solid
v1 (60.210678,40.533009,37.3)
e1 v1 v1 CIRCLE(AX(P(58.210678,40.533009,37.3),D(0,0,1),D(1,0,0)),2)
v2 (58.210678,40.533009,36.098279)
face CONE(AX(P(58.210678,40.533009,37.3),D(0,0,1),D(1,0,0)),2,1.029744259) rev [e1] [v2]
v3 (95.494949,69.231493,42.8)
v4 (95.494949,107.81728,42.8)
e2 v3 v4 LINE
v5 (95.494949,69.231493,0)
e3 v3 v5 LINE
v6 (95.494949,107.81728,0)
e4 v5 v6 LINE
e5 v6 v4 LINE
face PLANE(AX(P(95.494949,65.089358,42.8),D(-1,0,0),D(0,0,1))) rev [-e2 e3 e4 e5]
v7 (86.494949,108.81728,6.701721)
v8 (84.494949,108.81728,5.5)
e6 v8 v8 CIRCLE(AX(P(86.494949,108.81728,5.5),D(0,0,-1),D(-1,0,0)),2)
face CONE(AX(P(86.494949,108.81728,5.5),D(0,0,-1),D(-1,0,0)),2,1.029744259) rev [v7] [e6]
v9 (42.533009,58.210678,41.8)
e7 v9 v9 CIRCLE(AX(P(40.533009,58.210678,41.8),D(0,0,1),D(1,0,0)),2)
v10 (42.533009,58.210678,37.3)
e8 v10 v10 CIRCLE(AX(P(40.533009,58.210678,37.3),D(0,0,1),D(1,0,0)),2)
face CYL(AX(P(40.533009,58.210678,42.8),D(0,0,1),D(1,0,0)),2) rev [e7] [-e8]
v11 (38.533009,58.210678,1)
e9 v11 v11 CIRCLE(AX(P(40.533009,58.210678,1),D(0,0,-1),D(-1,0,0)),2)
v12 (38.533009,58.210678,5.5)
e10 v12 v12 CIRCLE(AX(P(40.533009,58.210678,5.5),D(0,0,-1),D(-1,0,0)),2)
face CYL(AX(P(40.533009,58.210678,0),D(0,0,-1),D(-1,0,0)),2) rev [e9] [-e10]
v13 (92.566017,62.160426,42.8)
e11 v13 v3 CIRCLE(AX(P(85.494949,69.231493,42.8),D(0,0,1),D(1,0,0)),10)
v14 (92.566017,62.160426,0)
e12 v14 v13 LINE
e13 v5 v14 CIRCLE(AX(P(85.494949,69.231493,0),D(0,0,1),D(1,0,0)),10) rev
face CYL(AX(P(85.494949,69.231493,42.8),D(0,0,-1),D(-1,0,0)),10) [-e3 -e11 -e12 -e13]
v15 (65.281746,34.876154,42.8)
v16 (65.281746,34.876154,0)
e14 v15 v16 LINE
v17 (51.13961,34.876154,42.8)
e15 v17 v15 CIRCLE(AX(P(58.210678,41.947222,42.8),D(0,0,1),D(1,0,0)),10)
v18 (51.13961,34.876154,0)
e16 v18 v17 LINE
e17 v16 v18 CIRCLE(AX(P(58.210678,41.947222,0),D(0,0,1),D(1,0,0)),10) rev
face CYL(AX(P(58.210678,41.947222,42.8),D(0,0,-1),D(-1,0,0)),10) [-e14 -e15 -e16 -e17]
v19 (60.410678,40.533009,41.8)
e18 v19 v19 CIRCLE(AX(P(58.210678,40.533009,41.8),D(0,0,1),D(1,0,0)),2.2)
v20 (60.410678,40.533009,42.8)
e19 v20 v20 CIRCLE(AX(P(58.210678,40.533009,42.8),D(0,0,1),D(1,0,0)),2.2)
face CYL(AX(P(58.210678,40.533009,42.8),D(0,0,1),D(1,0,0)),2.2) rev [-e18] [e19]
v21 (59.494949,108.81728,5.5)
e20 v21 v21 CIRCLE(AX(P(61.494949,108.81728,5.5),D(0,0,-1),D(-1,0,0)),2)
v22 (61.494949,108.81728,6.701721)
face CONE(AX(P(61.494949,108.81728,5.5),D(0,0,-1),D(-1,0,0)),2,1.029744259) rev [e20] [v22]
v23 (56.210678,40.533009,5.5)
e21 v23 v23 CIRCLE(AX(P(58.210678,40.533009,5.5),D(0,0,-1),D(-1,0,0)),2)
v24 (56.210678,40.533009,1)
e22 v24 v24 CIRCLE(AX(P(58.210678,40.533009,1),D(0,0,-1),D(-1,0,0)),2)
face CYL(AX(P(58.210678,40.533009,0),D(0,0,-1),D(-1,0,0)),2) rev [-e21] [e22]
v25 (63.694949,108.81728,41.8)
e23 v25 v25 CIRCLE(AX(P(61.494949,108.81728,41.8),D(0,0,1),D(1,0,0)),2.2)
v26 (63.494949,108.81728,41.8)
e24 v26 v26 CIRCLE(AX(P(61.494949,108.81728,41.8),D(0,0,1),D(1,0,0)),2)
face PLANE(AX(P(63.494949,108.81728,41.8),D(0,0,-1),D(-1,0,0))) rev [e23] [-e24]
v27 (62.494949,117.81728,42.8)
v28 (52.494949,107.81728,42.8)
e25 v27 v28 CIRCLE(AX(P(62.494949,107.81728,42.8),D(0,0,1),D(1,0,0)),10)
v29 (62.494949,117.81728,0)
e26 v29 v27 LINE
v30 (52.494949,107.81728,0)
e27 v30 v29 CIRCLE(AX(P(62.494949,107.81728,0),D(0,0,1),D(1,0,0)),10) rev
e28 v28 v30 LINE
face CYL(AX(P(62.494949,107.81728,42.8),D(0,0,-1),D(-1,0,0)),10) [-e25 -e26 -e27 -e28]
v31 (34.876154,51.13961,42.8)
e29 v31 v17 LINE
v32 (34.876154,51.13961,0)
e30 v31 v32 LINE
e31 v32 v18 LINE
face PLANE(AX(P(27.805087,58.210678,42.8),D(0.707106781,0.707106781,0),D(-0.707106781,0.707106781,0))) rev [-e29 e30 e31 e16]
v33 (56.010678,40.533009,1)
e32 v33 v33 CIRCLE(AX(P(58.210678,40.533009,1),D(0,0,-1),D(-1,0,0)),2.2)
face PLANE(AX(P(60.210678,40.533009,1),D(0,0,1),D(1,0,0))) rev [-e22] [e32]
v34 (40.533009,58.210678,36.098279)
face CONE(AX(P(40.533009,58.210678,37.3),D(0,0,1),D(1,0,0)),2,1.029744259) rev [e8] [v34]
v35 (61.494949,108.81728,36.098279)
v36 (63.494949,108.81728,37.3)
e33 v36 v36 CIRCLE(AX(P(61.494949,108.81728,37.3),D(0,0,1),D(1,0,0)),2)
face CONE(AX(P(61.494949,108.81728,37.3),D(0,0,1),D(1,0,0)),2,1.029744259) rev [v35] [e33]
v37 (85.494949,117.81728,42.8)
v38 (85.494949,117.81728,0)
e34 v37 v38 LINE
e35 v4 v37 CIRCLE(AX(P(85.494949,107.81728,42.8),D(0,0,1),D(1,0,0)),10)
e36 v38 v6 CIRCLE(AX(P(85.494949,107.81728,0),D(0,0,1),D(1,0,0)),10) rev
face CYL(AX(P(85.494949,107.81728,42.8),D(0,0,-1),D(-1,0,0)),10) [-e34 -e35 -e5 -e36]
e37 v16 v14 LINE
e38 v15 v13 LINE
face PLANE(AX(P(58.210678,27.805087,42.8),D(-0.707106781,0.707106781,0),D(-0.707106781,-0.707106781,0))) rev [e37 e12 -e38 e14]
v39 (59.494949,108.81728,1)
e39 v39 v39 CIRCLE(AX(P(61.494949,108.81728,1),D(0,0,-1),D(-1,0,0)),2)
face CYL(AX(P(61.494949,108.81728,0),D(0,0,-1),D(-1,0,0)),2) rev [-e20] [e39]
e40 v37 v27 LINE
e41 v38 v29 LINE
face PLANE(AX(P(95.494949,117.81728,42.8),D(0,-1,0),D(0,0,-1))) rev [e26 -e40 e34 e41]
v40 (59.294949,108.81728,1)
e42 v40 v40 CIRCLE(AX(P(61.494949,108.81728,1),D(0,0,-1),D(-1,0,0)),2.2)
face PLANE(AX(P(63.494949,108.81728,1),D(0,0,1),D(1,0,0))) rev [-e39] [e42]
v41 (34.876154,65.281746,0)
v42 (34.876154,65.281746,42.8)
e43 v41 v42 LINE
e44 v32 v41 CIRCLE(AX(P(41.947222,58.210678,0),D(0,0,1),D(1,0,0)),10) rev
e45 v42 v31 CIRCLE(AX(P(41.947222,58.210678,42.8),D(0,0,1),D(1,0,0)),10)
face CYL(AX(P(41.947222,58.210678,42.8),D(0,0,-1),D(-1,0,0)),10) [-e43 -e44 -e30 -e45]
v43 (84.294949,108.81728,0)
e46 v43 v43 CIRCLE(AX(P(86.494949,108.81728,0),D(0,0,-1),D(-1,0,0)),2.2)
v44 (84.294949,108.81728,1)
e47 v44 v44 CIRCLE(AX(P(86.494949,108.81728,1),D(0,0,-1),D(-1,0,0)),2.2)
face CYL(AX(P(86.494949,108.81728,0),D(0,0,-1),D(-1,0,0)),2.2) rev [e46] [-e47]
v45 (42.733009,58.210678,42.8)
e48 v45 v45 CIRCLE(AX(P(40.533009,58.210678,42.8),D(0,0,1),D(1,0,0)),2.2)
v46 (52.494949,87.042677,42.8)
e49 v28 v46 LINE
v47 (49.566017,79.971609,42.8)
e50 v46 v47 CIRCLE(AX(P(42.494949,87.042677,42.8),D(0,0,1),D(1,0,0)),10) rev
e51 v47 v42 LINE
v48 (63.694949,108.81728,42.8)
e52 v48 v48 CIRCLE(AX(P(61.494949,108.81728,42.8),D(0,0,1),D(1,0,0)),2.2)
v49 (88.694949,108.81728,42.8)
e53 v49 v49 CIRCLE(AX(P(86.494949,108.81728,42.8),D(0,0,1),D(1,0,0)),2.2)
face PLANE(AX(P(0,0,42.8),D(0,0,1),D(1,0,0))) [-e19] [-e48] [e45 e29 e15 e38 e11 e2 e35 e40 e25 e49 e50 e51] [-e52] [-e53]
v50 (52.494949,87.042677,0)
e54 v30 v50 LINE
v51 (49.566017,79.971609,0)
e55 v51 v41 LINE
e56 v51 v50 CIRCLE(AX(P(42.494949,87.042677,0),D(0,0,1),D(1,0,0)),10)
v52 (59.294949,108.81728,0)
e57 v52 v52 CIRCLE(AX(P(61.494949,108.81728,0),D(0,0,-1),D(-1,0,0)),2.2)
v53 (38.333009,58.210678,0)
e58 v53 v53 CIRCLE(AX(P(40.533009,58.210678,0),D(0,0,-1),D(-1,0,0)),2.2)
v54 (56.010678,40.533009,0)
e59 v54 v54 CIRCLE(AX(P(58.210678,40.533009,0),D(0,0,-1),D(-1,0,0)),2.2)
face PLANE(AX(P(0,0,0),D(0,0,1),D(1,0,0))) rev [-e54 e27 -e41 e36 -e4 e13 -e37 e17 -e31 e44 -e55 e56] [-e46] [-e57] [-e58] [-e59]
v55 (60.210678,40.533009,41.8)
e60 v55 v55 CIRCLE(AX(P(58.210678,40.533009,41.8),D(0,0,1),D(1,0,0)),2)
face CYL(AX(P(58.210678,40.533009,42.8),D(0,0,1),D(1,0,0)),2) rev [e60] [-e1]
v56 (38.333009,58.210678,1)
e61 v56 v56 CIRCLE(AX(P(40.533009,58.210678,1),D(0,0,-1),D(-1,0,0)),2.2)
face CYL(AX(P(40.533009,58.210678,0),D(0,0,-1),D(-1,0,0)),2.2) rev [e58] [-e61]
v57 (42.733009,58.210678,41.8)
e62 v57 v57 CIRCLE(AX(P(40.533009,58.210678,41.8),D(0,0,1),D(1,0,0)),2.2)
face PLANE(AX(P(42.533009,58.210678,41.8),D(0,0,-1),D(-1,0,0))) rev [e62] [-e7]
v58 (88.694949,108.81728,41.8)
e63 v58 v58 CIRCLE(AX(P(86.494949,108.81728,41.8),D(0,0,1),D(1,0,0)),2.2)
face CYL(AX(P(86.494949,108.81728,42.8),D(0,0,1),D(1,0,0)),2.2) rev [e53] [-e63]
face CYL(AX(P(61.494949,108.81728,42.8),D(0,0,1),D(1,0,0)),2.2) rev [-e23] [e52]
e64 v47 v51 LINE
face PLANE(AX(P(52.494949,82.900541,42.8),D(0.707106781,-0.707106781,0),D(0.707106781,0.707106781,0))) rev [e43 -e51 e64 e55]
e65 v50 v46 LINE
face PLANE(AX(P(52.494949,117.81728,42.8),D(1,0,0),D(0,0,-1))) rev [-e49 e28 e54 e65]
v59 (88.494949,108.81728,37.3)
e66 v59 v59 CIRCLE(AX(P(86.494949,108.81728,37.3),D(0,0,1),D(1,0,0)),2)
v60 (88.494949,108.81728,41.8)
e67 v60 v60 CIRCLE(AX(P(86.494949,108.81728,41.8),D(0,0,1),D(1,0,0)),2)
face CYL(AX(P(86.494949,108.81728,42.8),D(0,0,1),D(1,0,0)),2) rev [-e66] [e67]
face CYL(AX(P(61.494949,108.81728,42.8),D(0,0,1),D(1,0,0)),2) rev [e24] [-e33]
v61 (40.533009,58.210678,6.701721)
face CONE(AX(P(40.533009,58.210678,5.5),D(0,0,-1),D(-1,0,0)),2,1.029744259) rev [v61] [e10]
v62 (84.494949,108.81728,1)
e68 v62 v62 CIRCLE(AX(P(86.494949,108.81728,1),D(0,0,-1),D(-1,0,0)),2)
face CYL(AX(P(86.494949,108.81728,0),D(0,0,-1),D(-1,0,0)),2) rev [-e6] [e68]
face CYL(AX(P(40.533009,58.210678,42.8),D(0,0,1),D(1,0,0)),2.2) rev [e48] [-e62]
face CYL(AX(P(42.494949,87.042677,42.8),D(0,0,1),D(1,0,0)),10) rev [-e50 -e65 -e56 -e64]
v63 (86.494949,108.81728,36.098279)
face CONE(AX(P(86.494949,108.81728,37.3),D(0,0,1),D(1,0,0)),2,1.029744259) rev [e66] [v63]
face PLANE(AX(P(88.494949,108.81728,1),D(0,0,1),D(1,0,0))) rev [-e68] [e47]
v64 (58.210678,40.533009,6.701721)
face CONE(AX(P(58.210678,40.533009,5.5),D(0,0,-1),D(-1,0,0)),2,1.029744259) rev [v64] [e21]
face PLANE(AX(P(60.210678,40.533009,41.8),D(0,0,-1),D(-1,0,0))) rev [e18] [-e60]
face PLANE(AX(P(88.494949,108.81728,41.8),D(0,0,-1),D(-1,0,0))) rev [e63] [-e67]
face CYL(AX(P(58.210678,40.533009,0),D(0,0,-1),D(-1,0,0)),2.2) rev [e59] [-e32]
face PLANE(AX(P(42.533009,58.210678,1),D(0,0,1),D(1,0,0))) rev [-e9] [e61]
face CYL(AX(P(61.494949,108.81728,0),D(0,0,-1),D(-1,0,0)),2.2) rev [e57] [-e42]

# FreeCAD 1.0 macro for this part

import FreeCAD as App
import Part
import Sketcher

V = App.Vector
Q = App.Units.Quantity


def edges_at(feature, points):
    """Names of the edges that pass closest to the given points."""
    edges = feature.Shape.Edges
    near = lambda p: min(range(len(edges)), key=lambda i: edges[i].distToShape(Part.Vertex(*p))[0])
    return sorted({f"Edge{near(p) + 1}" for p in points})

doc = App.newDocument("Part")
body = doc.addObject("PartDesign::Body", "Body")

# Sketch on XY plane
sketch1 = body.newObject("Sketcher::SketchObject", "Sketch")
sketch1.AttachmentSupport = (doc.getObject("XY_Plane"), [""])
sketch1.MapMode = "FlatFace"
sketch1.addGeometry(Part.LineSegment(V(52, 118, 0), V(52, 83, 0)), False)
sketch1.addGeometry(Part.LineSegment(V(52, 83, 0), V(28, 58, 0)), False)
sketch1.addGeometry(Part.LineSegment(V(28, 58, 0), V(58, 28, 0)), False)
sketch1.addGeometry(Part.LineSegment(V(58, 28, 0), V(95, 65, 0)), False)
sketch1.addGeometry(Part.LineSegment(V(95, 65, 0), V(95, 118, 0)), False)
sketch1.addGeometry(Part.LineSegment(V(95, 118, 0), V(52, 118, 0)), False)
sketch1.addConstraint(Sketcher.Constraint("Coincident", 0, 2, 1, 1))
sketch1.addConstraint(Sketcher.Constraint("Coincident", 1, 2, 2, 1))
sketch1.addConstraint(Sketcher.Constraint("Coincident", 2, 2, 3, 1))
sketch1.addConstraint(Sketcher.Constraint("Coincident", 3, 2, 4, 1))
sketch1.addConstraint(Sketcher.Constraint("Coincident", 4, 2, 5, 1))
sketch1.addConstraint(Sketcher.Constraint("Coincident", 5, 2, 0, 1))
sketch1.addConstraint(Sketcher.Constraint("Vertical", 0))
sketch1.addConstraint(Sketcher.Constraint("Vertical", 4))
sketch1.addConstraint(Sketcher.Constraint("Horizontal", 5))
sketch1.addConstraint(Sketcher.Constraint("Perpendicular", 1, 2))
sketch1.addConstraint(Sketcher.Constraint("Perpendicular", 2, 3))
sketch1.addConstraint(Sketcher.Constraint("DistanceX", 5, 2, 5, 1, 43.0))
sketch1.addConstraint(Sketcher.Constraint("Angle", 1, Q("-135 deg")))
sketch1.addConstraint(Sketcher.Constraint("Distance", 2, 43.0))
sketch1.addConstraint(Sketcher.Constraint("DistanceY", 0, 2, 0, 1, 34.916739))
sketch1.addConstraint(Sketcher.Constraint("DistanceY", 1, 2, 4, 2, 59.606602))
sketch1.addConstraint(Sketcher.Constraint("DistanceX", -1, 1, 0, 2, 52.494949))
sketch1.addConstraint(Sketcher.Constraint("DistanceY", -1, 1, 0, 2, 82.900541))
pad1 = body.newObject("PartDesign::Pad", "Pad")
pad1.Profile = sketch1
pad1.Length = 42.8

# Sketch on XY plane
sketch2 = body.newObject("Sketcher::SketchObject", "Sketch001")
sketch2.AttachmentSupport = (doc.getObject("XY_Plane"), [""])
sketch2.MapMode = "FlatFace"
sketch2.addGeometry(Part.Circle(V(86.5, 108.8, 0), V(0, 0, 1), 2), False)
sketch2.addGeometry(Part.Circle(V(61.5, 108.8, 0), V(0, 0, 1), 2), False)
sketch2.addGeometry(Part.Circle(V(58.2, 40.5, 0), V(0, 0, 1), 2), False)
sketch2.addGeometry(Part.Circle(V(40.5, 58.2, 0), V(0, 0, 1), 2), False)
sketch2.addConstraint(Sketcher.Constraint("Equal", 0, 1))
sketch2.addConstraint(Sketcher.Constraint("Equal", 1, 2))
sketch2.addConstraint(Sketcher.Constraint("Equal", 2, 3))
sketch2.addConstraint(Sketcher.Constraint("Horizontal", 0, 3, 1, 3))
sketch2.addConstraint(Sketcher.Constraint("Diameter", 0, 4.0))
sketch2.addConstraint(Sketcher.Constraint("DistanceX", 1, 3, 0, 3, 25.0))
sketch2.addConstraint(Sketcher.Constraint("DistanceY", 3, 3, 1, 3, 50.606602))
sketch2.addConstraint(Sketcher.Constraint("DistanceX", -1, 1, 0, 3, 86.494949))
sketch2.addConstraint(Sketcher.Constraint("DistanceY", -1, 1, 0, 3, 108.81728))
sketch2.addConstraint(Sketcher.Constraint("DistanceX", -1, 1, 2, 3, 58.210678))
sketch2.addConstraint(Sketcher.Constraint("DistanceY", -1, 1, 2, 3, 40.533009))
sketch2.addConstraint(Sketcher.Constraint("DistanceX", -1, 1, 3, 3, 40.533009))
doc.recompute()
hole = body.newObject("PartDesign::Hole", "Hole")
hole.Profile = sketch2
hole.ThreadType = "None"
hole.Diameter = 4
hole.DepthType = "Dimension"
hole.Depth = 5.5
hole.DrillPoint = "Angled"
hole.DrillPointAngle = 118
hole.HoleCutType = "Counterbore"
hole.HoleCutDiameter = 4.4
hole.HoleCutDepth = 1
hole.Reversed = True

# Sketch on XY plane
sketch3 = body.newObject("Sketcher::SketchObject", "Sketch002")
sketch3.AttachmentSupport = (doc.getObject("XY_Plane"), [""])
sketch3.MapMode = "FlatFace"
sketch3.AttachmentOffset = App.Placement(V(0, 0, 42.8), App.Rotation())
sketch3.addGeometry(Part.Circle(V(61.5, 108.8, 0), V(0, 0, 1), 2), False)
sketch3.addGeometry(Part.Circle(V(86.5, 108.8, 0), V(0, 0, 1), 2), False)
sketch3.addGeometry(Part.Circle(V(58.2, 40.5, 0), V(0, 0, 1), 2), False)
sketch3.addGeometry(Part.Circle(V(40.5, 58.2, 0), V(0, 0, 1), 2), False)
sketch3.addConstraint(Sketcher.Constraint("Equal", 0, 1))
sketch3.addConstraint(Sketcher.Constraint("Equal", 1, 2))
sketch3.addConstraint(Sketcher.Constraint("Equal", 2, 3))
sketch3.addConstraint(Sketcher.Constraint("Horizontal", 0, 3, 1, 3))
sketch3.addConstraint(Sketcher.Constraint("Diameter", 0, 4.0))
sketch3.addConstraint(Sketcher.Constraint("DistanceX", 0, 3, 1, 3, 25.0))
sketch3.addConstraint(Sketcher.Constraint("DistanceY", 3, 3, 0, 3, 50.606602))
sketch3.addConstraint(Sketcher.Constraint("DistanceX", -1, 1, 0, 3, 61.494949))
sketch3.addConstraint(Sketcher.Constraint("DistanceY", -1, 1, 0, 3, 108.81728))
sketch3.addConstraint(Sketcher.Constraint("DistanceX", -1, 1, 2, 3, 58.210678))
sketch3.addConstraint(Sketcher.Constraint("DistanceY", -1, 1, 2, 3, 40.533009))
sketch3.addConstraint(Sketcher.Constraint("DistanceX", -1, 1, 3, 3, 40.533009))
doc.recompute()
hole2 = body.newObject("PartDesign::Hole", "Hole001")
hole2.Profile = sketch3
hole2.ThreadType = "None"
hole2.Diameter = 4
hole2.DepthType = "Dimension"
hole2.Depth = 5.5
hole2.DrillPoint = "Angled"
hole2.DrillPointAngle = 118
hole2.HoleCutType = "Counterbore"
hole2.HoleCutDiameter = 4.4
hole2.HoleCutDepth = 1
doc.recompute()

fillet = body.newObject("PartDesign::Fillet", "Fillet")
fillet.Base = (hole2, edges_at(hole2, [
    (95.495, 117.817, 21.4),
    (95.495, 65.089, 21.4),
    (58.211, 27.805, 21.4),
    (27.805, 58.211, 21.4),
    (52.495, 82.901, 21.4),
    (52.495, 117.817, 21.4),
]))
fillet.Radius = 10

doc.recompute()
